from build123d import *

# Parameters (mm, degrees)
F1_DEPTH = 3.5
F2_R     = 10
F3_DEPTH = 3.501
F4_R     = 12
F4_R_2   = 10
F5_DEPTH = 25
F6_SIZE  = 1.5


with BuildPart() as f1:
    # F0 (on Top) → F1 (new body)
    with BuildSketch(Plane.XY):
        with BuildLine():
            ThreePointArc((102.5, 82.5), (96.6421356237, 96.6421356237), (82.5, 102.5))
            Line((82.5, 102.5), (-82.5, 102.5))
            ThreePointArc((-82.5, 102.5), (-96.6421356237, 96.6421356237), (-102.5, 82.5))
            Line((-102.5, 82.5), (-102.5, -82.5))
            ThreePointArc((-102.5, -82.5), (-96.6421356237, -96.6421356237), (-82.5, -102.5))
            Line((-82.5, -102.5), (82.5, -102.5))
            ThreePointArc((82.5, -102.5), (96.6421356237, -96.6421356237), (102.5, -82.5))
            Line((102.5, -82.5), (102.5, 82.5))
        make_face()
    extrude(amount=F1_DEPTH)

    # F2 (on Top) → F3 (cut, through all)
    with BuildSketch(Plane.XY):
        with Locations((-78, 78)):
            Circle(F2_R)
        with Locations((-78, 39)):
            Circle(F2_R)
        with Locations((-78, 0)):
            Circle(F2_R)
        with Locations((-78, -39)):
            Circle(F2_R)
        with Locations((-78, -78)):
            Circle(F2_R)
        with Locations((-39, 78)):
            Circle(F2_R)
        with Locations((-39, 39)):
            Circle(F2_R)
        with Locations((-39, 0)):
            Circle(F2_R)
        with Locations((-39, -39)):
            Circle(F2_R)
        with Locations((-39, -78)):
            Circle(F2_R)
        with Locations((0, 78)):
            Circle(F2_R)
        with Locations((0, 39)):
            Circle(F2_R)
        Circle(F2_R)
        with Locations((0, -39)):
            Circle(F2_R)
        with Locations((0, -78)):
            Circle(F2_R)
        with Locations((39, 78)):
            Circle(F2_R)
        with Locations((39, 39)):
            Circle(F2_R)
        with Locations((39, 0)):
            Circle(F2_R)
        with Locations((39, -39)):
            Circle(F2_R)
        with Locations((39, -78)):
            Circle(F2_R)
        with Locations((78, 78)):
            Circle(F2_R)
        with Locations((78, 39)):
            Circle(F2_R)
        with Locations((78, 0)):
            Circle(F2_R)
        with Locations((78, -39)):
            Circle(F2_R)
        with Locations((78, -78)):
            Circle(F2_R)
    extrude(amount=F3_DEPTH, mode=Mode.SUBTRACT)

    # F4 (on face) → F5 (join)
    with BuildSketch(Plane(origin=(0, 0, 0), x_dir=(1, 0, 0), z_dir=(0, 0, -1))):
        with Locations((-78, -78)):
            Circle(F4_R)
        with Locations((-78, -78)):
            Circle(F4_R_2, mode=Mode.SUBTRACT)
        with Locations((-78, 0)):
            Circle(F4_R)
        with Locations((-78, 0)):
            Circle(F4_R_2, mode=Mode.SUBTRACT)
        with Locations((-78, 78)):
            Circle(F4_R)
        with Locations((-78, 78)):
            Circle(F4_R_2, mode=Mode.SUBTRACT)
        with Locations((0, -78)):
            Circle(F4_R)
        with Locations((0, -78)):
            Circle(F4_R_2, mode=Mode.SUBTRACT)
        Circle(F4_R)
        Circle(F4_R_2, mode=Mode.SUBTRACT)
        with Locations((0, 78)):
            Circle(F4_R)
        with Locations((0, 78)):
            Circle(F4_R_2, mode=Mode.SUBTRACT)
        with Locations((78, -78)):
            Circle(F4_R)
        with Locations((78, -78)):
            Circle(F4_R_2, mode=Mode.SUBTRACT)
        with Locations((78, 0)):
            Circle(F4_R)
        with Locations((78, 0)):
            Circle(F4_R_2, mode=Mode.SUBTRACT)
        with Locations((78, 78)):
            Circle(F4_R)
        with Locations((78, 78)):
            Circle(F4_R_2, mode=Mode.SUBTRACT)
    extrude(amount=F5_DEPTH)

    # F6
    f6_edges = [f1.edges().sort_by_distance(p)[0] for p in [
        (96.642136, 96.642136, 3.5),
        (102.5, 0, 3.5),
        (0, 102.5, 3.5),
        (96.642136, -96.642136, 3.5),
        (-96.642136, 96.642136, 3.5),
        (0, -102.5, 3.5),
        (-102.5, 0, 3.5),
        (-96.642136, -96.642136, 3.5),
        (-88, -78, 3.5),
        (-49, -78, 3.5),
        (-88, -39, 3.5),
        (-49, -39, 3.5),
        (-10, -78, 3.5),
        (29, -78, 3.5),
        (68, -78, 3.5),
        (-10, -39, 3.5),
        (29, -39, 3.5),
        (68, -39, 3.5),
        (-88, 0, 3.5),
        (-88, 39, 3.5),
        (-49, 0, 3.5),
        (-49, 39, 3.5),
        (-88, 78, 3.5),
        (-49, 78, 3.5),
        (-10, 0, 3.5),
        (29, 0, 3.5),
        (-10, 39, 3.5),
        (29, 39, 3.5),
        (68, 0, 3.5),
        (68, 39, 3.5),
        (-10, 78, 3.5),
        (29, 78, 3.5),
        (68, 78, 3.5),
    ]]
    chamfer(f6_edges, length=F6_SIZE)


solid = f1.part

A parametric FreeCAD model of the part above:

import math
import FreeCAD as App
import Part
import Sketcher

V = App.Vector
Q = App.Units.Quantity


def edges_at(feature, points):
    """Names of the edges that pass closest to the given points."""
    edges = feature.Shape.Edges
    near = lambda p: min(range(len(edges)), key=lambda i: edges[i].distToShape(Part.Vertex(*p))[0])
    return sorted({f"Edge{near(p) + 1}" for p in points})

doc = App.newDocument("Part")
body = doc.addObject("PartDesign::Body", "Body")

# Sketch on XY plane
sketch1 = doc.addObject("Sketcher::SketchObject", "Sketch")
body.addObject(sketch1)
sketch1.AttachmentSupport = (doc.XY_Plane, [""])
sketch1.MapMode = "FlatFace"
sketch1.addGeometry([
    Part.ArcOfCircle(Part.Circle(V(82, 82, 0), V(0, 0, 1), 20), math.radians(0), math.radians(90)),  # 0
    Part.LineSegment(V(82, 102, 0), V(-82, 102, 0)),  # 1
    Part.ArcOfCircle(Part.Circle(V(-82, 82, 0), V(0, 0, 1), 20), math.radians(90), math.radians(180)),  # 2
    Part.LineSegment(V(-102, 82, 0), V(-102, -82, 0)),  # 3
    Part.ArcOfCircle(Part.Circle(V(-82, -82, 0), V(0, 0, 1), 20), math.radians(180), math.radians(270)),  # 4
    Part.LineSegment(V(-82, -102, 0), V(82, -102, 0)),  # 5
    Part.ArcOfCircle(Part.Circle(V(82, -82, 0), V(0, 0, 1), 20), math.radians(-90), math.radians(0)),  # 6
    Part.LineSegment(V(102, -82, 0), V(102, 82, 0)),  # 7
], False)
sketch1.addConstraint([
    Sketcher.Constraint("Tangent", 0, 2, 1, 1),
    Sketcher.Constraint("Tangent", 1, 2, 2, 1),
    Sketcher.Constraint("Tangent", 2, 2, 3, 1),
    Sketcher.Constraint("Tangent", 3, 2, 4, 1),
    Sketcher.Constraint("Tangent", 4, 2, 5, 1),
    Sketcher.Constraint("Tangent", 5, 2, 6, 1),
    Sketcher.Constraint("Tangent", 6, 2, 7, 1),
    Sketcher.Constraint("Tangent", 7, 2, 0, 1),
    Sketcher.Constraint("Horizontal", 1),
    Sketcher.Constraint("Vertical", 3),
    Sketcher.Constraint("Horizontal", 5),
    Sketcher.Constraint("Vertical", 7),
    Sketcher.Constraint("Equal", 0, 2),
    Sketcher.Constraint("Equal", 2, 4),
    Sketcher.Constraint("Equal", 4, 6),
    Sketcher.Constraint("Symmetric", 0, 3, 4, 3, -1, 1),
    Sketcher.Constraint("Equal", 5, 3),
    Sketcher.Constraint("Radius", 0, Q("20 mm")),
    Sketcher.Constraint("DistanceX", 1, 2, 1, 1, Q("165 mm")),
])
pad1 = doc.addObject("PartDesign::Pad", "Pad")
body.addObject(pad1)
pad1.Profile = sketch1
pad1.Length = 3.5

# Sketch on XY plane
sketch2 = doc.addObject("Sketcher::SketchObject", "Sketch001")
body.addObject(sketch2)
sketch2.AttachmentSupport = (doc.XY_Plane, [""])
sketch2.MapMode = "FlatFace"
sketch2.addGeometry([
    Part.Circle(V(-78, 78, 0), V(0, 0, 1), 10),  # 0
    Part.Circle(V(-78, 39, 0), V(0, 0, 1), 10),  # 1
    Part.Circle(V(-78, 0, 0), V(0, 0, 1), 10),  # 2
    Part.Circle(V(-78, -39, 0), V(0, 0, 1), 10),  # 3
    Part.Circle(V(-78, -78, 0), V(0, 0, 1), 10),  # 4
    Part.Circle(V(-39, 78, 0), V(0, 0, 1), 10),  # 5
    Part.Circle(V(-39, 39, 0), V(0, 0, 1), 10),  # 6
    Part.Circle(V(-39, 0, 0), V(0, 0, 1), 10),  # 7
    Part.Circle(V(-39, -39, 0), V(0, 0, 1), 10),  # 8
    Part.Circle(V(-39, -78, 0), V(0, 0, 1), 10),  # 9
    Part.Circle(V(0, 78, 0), V(0, 0, 1), 10),  # 10
    Part.Circle(V(0, 39, 0), V(0, 0, 1), 10),  # 11
    Part.Circle(V(0, 0, 0), V(0, 0, 1), 10),  # 12
    Part.Circle(V(0, -39, 0), V(0, 0, 1), 10),  # 13
    Part.Circle(V(0, -78, 0), V(0, 0, 1), 10),  # 14
    Part.Circle(V(39, 78, 0), V(0, 0, 1), 10),  # 15
    Part.Circle(V(39, 39, 0), V(0, 0, 1), 10),  # 16
    Part.Circle(V(39, 0, 0), V(0, 0, 1), 10),  # 17
    Part.Circle(V(39, -39, 0), V(0, 0, 1), 10),  # 18
    Part.Circle(V(39, -78, 0), V(0, 0, 1), 10),  # 19
    Part.Circle(V(78, 78, 0), V(0, 0, 1), 10),  # 20
    Part.Circle(V(78, 39, 0), V(0, 0, 1), 10),  # 21
    Part.Circle(V(78, 0, 0), V(0, 0, 1), 10),  # 22
    Part.Circle(V(78, -39, 0), V(0, 0, 1), 10),  # 23
    Part.Circle(V(78, -78, 0), V(0, 0, 1), 10),  # 24
], False)
sketch2.addConstraint([
    Sketcher.Constraint("Coincident", 12, 3, -1, 1),
    Sketcher.Constraint("Equal", 0, 1),
    Sketcher.Constraint("Equal", 1, 2),
    Sketcher.Constraint("Equal", 2, 3),
    Sketcher.Constraint("Equal", 3, 4),
    Sketcher.Constraint("Equal", 4, 5),
    Sketcher.Constraint("Equal", 5, 6),
    Sketcher.Constraint("Equal", 6, 7),
    Sketcher.Constraint("Equal", 7, 8),
    Sketcher.Constraint("Equal", 8, 9),
    Sketcher.Constraint("Equal", 9, 10),
    Sketcher.Constraint("Equal", 10, 11),
    Sketcher.Constraint("Equal", 11, 12),
    Sketcher.Constraint("Equal", 12, 13),
    Sketcher.Constraint("Equal", 13, 14),
    Sketcher.Constraint("Equal", 14, 15),
    Sketcher.Constraint("Equal", 15, 16),
    Sketcher.Constraint("Equal", 16, 17),
    Sketcher.Constraint("Equal", 17, 18),
    Sketcher.Constraint("Equal", 18, 19),
    Sketcher.Constraint("Equal", 19, 20),
    Sketcher.Constraint("Equal", 20, 21),
    Sketcher.Constraint("Equal", 21, 22),
    Sketcher.Constraint("Equal", 22, 23),
    Sketcher.Constraint("Equal", 23, 24),
    Sketcher.Constraint("Symmetric", 11, 3, 13, 3, -1, 1),
    Sketcher.Constraint("Symmetric", 10, 3, 14, 3, -1, 1),
    Sketcher.Constraint("Symmetric", 9, 3, 15, 3, -1, 1),
    Sketcher.Constraint("Symmetric", 8, 3, 16, 3, -1, 1),
    Sketcher.Constraint("Symmetric", 7, 3, 17, 3, -1, 1),
    Sketcher.Constraint("Symmetric", 6, 3, 18, 3, -1, 1),
    Sketcher.Constraint("Symmetric", 5, 3, 19, 3, -1, 1),
    Sketcher.Constraint("Symmetric", 4, 3, 20, 3, -1, 1),
    Sketcher.Constraint("Symmetric", 3, 3, 21, 3, -1, 1),
    Sketcher.Constraint("Symmetric", 2, 3, 22, 3, -1, 1),
    Sketcher.Constraint("Symmetric", 1, 3, 23, 3, -1, 1),
    Sketcher.Constraint("Symmetric", 0, 3, 24, 3, -1, 1),
    Sketcher.Constraint("Symmetric", 5, 3, 15, 3, -2),
    Sketcher.Constraint("Symmetric", 6, 3, 16, 3, -2),
    Sketcher.Constraint("Symmetric", 0, 3, 20, 3, -2),
    Sketcher.Constraint("Symmetric", 1, 3, 21, 3, -2),
    Sketcher.Constraint("PointOnObject", 2, 3, -1),
    Sketcher.Constraint("PointOnObject", 7, 3, -1),
    Sketcher.Constraint("PointOnObject", 10, 3, -2),
    Sketcher.Constraint("PointOnObject", 11, 3, -2),
    Sketcher.Constraint("Horizontal", 0, 3, 5, 3),
    Sketcher.Constraint("Horizontal", 1, 3, 6, 3),
    Sketcher.Constraint("Horizontal", 5, 3, 10, 3),
    Sketcher.Constraint("Horizontal", 6, 3, 11, 3),
    Sketcher.Constraint("Vertical", 0, 3, 1, 3),
    Sketcher.Constraint("Vertical", 1, 3, 2, 3),
    Sketcher.Constraint("Vertical", 5, 3, 6, 3),
    Sketcher.Constraint("Vertical", 6, 3, 7, 3),
    Sketcher.Constraint("Diameter", 0, Q("20 mm")),
    Sketcher.Constraint("DistanceX", 0, 3, -1, 1, Q("78 mm")),
    Sketcher.Constraint("DistanceY", -1, 1, 0, 3, Q("78 mm")),
    Sketcher.Constraint("DistanceY", -1, 1, 1, 3, Q("39 mm")),
    Sketcher.Constraint("DistanceX", 5, 3, -1, 1, Q("39 mm")),
])
pocket1 = doc.addObject("PartDesign::Pocket", "Pocket")
body.addObject(pocket1)
pocket1.Profile = sketch2
pocket1.Type = "ThroughAll"
pocket1.Reversed = True

# Sketch on XY plane
sketch3 = doc.addObject("Sketcher::SketchObject", "Sketch002")
body.addObject(sketch3)
sketch3.AttachmentSupport = (doc.XY_Plane, [""])
sketch3.MapMode = "FlatFace"
sketch3.addGeometry([
    Part.Circle(V(-78, 78, 0), V(0, 0, 1), 12),  # 0
    Part.Circle(V(-78, 78, 0), V(0, 0, 1), 10),  # 1
    Part.Circle(V(-78, 0, 0), V(0, 0, 1), 12),  # 2
    Part.Circle(V(-78, 0, 0), V(0, 0, 1), 10),  # 3
    Part.Circle(V(-78, -78, 0), V(0, 0, 1), 12),  # 4
    Part.Circle(V(-78, -78, 0), V(0, 0, 1), 10),  # 5
    Part.Circle(V(0, 78, 0), V(0, 0, 1), 12),  # 6
    Part.Circle(V(0, 78, 0), V(0, 0, 1), 10),  # 7
    Part.Circle(V(0, 0, 0), V(0, 0, 1), 12),  # 8
    Part.Circle(V(0, 0, 0), V(0, 0, 1), 10),  # 9
    Part.Circle(V(0, -78, 0), V(0, 0, 1), 12),  # 10
    Part.Circle(V(0, -78, 0), V(0, 0, 1), 10),  # 11
    Part.Circle(V(78, 78, 0), V(0, 0, 1), 12),  # 12
    Part.Circle(V(78, 78, 0), V(0, 0, 1), 10),  # 13
    Part.Circle(V(78, 0, 0), V(0, 0, 1), 12),  # 14
    Part.Circle(V(78, 0, 0), V(0, 0, 1), 10),  # 15
    Part.Circle(V(78, -78, 0), V(0, 0, 1), 12),  # 16
    Part.Circle(V(78, -78, 0), V(0, 0, 1), 10),  # 17
], False)
sketch3.addConstraint([
    Sketcher.Constraint("Coincident", 8, 3, -1, 1),
    Sketcher.Constraint("Coincident", 9, 3, -1, 1),
    Sketcher.Constraint("Coincident", 1, 3, 0, 3),
    Sketcher.Constraint("Coincident", 3, 3, 2, 3),
    Sketcher.Constraint("Coincident", 5, 3, 4, 3),
    Sketcher.Constraint("Coincident", 7, 3, 6, 3),
    Sketcher.Constraint("Coincident", 11, 3, 10, 3),
    Sketcher.Constraint("Coincident", 13, 3, 12, 3),
    Sketcher.Constraint("Coincident", 15, 3, 14, 3),
    Sketcher.Constraint("Coincident", 17, 3, 16, 3),
    Sketcher.Constraint("Equal", 0, 2),
    Sketcher.Constraint("Equal", 1, 3),
    Sketcher.Constraint("Equal", 2, 4),
    Sketcher.Constraint("Equal", 3, 5),
    Sketcher.Constraint("Equal", 4, 6),
    Sketcher.Constraint("Equal", 5, 7),
    Sketcher.Constraint("Equal", 6, 8),
    Sketcher.Constraint("Equal", 7, 9),
    Sketcher.Constraint("Equal", 8, 10),
    Sketcher.Constraint("Equal", 9, 11),
    Sketcher.Constraint("Equal", 10, 12),
    Sketcher.Constraint("Equal", 11, 13),
    Sketcher.Constraint("Equal", 12, 14),
    Sketcher.Constraint("Equal", 13, 15),
    Sketcher.Constraint("Equal", 14, 16),
    Sketcher.Constraint("Equal", 15, 17),
    Sketcher.Constraint("Symmetric", 6, 3, 10, 3, -1, 1),
    Sketcher.Constraint("Symmetric", 4, 3, 12, 3, -1, 1),
    Sketcher.Constraint("Symmetric", 2, 3, 14, 3, -1, 1),
    Sketcher.Constraint("Symmetric", 0, 3, 16, 3, -1, 1),
    Sketcher.Constraint("Symmetric", 0, 3, 12, 3, -2),
    Sketcher.Constraint("PointOnObject", 2, 3, -1),
    Sketcher.Constraint("PointOnObject", 6, 3, -2),
    Sketcher.Constraint("Horizontal", 1, 3, 6, 3),
    Sketcher.Constraint("Vertical", 1, 3, 2, 3),
    Sketcher.Constraint("Diameter", 0, Q("24 mm")),
    Sketcher.Constraint("Diameter", 1, Q("20 mm")),
    Sketcher.Constraint("DistanceX", 0, 3, -1, 1, Q("78 mm")),
    Sketcher.Constraint("DistanceY", -1, 1, 0, 3, Q("78 mm")),
])
pad2 = doc.addObject("PartDesign::Pad", "Pad001")
body.addObject(pad2)
pad2.Profile = sketch3
pad2.Length = 25
pad2.Reversed = True
doc.recompute()

chamfer = doc.addObject("PartDesign::Chamfer", "Chamfer")
body.addObject(chamfer)
chamfer.Base = (pad2, edges_at(pad2, [
    (96.642, 96.642, 3.5),
    (102.5, 0, 3.5),
    (0, 102.5, 3.5),
    (96.642, -96.642, 3.5),
    (-96.642, 96.642, 3.5),
    (0, -102.5, 3.5),
    (-102.5, 0, 3.5),
    (-96.642, -96.642, 3.5),
    (-88, -78, 3.5),
    (-49, -78, 3.5),
    (-88, -39, 3.5),
    (-49, -39, 3.5),
    (-10, -78, 3.5),
    (29, -78, 3.5),
    (68, -78, 3.5),
    (-10, -39, 3.5),
    (29, -39, 3.5),
    (68, -39, 3.5),
    (-88, 0, 3.5),
    (-88, 39, 3.5),
    (-49, 0, 3.5),
    (-49, 39, 3.5),
    (-88, 78, 3.5),
    (-49, 78, 3.5),
    (-10, 0, 3.5),
    (29, 0, 3.5),
    (-10, 39, 3.5),
    (29, 39, 3.5),
    (68, 0, 3.5),
    (68, 39, 3.5),
    (-10, 78, 3.5),
    (29, 78, 3.5),
    (68, 78, 3.5),
]))
chamfer.Size = 1.5

doc.recompute()
